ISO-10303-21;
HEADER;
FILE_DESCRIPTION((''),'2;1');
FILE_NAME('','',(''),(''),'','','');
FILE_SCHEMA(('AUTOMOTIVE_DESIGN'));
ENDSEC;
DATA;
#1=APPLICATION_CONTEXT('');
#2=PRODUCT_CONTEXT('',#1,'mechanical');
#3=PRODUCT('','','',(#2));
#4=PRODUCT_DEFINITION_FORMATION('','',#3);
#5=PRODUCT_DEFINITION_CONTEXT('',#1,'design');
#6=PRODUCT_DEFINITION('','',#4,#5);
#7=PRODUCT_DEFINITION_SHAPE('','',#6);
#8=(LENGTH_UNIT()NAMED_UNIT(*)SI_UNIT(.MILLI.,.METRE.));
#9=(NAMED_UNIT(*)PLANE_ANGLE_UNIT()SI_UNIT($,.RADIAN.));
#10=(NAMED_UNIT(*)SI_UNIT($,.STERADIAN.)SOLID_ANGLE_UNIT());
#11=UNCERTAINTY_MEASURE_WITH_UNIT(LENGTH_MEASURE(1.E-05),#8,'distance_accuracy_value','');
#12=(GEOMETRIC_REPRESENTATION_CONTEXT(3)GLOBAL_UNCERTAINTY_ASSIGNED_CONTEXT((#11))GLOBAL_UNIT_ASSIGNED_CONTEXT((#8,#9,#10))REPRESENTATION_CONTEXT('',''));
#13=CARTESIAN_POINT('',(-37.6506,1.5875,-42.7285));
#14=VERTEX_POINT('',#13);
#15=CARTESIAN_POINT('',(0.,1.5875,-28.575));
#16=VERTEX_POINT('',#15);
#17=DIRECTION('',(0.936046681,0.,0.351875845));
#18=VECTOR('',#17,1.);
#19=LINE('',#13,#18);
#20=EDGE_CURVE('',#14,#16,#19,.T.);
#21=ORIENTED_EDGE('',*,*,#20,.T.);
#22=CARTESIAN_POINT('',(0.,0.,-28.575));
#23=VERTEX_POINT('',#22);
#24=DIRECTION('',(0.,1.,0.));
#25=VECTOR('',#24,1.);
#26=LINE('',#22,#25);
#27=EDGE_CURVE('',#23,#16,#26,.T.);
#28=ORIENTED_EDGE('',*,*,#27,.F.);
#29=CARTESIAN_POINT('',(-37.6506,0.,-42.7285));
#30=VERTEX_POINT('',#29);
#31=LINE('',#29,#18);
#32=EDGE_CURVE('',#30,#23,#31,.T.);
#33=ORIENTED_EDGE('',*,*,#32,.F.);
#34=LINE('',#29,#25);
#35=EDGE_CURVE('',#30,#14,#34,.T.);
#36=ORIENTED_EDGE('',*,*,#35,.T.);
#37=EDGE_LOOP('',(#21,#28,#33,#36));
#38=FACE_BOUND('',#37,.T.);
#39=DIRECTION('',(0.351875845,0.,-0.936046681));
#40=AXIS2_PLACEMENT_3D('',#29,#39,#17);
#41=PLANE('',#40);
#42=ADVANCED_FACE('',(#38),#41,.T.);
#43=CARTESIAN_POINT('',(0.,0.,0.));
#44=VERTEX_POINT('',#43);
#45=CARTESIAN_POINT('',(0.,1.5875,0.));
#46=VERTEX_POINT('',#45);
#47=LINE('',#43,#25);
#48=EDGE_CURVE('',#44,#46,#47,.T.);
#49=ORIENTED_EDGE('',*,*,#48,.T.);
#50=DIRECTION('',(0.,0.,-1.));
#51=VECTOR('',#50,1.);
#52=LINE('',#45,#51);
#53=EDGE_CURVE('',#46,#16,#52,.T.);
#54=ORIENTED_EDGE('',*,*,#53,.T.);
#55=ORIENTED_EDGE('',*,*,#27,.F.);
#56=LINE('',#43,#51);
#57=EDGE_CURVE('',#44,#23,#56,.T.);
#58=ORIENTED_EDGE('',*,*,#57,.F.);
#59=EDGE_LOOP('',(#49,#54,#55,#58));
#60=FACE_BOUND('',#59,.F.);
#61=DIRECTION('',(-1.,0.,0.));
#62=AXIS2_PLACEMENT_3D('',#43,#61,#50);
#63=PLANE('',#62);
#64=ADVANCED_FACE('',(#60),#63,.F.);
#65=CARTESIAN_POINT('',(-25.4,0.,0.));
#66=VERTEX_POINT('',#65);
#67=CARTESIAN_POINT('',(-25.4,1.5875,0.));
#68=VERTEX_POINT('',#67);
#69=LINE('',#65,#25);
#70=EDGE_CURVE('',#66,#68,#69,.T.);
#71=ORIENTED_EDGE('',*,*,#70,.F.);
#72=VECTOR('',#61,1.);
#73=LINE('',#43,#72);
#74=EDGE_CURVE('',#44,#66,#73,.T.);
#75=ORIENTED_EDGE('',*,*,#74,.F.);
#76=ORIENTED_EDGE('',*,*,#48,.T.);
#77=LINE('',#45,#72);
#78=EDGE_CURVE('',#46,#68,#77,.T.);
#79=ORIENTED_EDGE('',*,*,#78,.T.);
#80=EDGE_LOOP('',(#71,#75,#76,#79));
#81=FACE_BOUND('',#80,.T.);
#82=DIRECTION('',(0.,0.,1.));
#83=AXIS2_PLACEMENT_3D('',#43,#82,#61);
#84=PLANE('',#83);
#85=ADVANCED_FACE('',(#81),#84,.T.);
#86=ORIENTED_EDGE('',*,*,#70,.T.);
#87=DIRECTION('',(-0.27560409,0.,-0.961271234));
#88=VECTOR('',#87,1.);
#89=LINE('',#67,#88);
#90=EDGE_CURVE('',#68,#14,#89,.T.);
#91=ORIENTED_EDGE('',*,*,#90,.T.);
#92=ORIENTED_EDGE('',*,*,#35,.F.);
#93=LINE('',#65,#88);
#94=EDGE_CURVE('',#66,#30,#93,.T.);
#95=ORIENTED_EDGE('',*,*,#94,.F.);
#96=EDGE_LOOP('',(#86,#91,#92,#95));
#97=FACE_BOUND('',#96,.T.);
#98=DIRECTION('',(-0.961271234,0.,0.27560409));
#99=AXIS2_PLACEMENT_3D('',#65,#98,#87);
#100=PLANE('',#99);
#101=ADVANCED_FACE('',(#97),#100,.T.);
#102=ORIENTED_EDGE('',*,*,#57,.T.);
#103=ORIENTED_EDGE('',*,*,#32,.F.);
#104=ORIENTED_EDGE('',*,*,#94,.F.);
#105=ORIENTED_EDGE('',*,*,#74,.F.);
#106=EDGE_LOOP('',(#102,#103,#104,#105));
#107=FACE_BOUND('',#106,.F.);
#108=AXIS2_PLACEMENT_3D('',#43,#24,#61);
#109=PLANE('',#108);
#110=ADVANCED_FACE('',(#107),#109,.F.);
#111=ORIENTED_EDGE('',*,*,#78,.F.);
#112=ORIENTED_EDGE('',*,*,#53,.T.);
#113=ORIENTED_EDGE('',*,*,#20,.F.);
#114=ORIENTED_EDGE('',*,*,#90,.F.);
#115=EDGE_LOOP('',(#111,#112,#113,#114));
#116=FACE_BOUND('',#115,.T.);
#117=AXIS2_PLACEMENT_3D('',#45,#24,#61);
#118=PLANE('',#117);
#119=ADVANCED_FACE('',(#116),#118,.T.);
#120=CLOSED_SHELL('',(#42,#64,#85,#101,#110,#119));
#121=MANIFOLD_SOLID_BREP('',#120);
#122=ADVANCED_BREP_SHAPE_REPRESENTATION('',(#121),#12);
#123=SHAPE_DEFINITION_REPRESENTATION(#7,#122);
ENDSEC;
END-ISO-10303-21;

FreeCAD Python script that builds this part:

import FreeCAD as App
import Part
import Sketcher
Q = App.Units.Quantity

doc = App.newDocument("Part")
params = doc.addObject("Spreadsheet::Sheet", "Params")
for row, (alias, value) in enumerate([
    ("sketch1_width", "1 in"),
    ("sketch1_length", "1.75 in"),
    ("sketch1_height", "1.125 in"),
    ("pad1_length", "0.0625 in"),
], start=1):
    params.set(f"A{row}", alias)
    params.set(f"B{row}", "=" + value)
    params.setAlias(f"B{row}", alias)

body = doc.addObject("PartDesign::Body", "Body")

# Sketch on XZ plane
sketch1 = doc.addObject("Sketcher::SketchObject", "Sketch")
body.addObject(sketch1)
sketch1.AttachmentSupport = (doc.XZ_Plane, [""])
sketch1.MapMode = "FlatFace"
sketch1.addGeometry([
    Part.LineSegment(App.Vector(-25, 0, 0), App.Vector(0, 0, 0)),
    Part.LineSegment(App.Vector(0, 0, 0), App.Vector(0, -29, 0)),
    Part.LineSegment(App.Vector(0, -29, 0), App.Vector(-38, -43, 0)),
    Part.LineSegment(App.Vector(-38, -43, 0), App.Vector(-25, 0, 0)),
], False)
sketch1.addConstraint([
    Sketcher.Constraint("Coincident", 0, 2, 1, 1),
    Sketcher.Constraint("Coincident", 1, 2, 2, 1),
    Sketcher.Constraint("Coincident", 2, 2, 3, 1),
    Sketcher.Constraint("Coincident", 3, 2, 0, 1),
    Sketcher.Constraint("Horizontal", 0),
    Sketcher.Constraint("Vertical", 1),
    Sketcher.Constraint("Coincident", 0, 2, -1, 1),
    Sketcher.Constraint("DistanceX", 0, 1, 0, 2, Q("1 in")),
    Sketcher.Constraint("Distance", 3, Q("1.75 in")),
    Sketcher.Constraint("DistanceY", 1, 2, 1, 1, Q("1.125 in")),
    Sketcher.Constraint("DistanceX", 2, 2, -1, 1, Q("1.4823 in")),
])
sketch1.setExpression("Constraints[7]", "Params.sketch1_width")
sketch1.setExpression("Constraints[8]", "Params.sketch1_length")
sketch1.setExpression("Constraints[9]", "Params.sketch1_height")
pad1 = doc.addObject("PartDesign::Pad", "Pad")
body.addObject(pad1)
pad1.Profile = sketch1
pad1.setExpression("Length", "Params.pad1_length")
pad1.Reversed = True

doc.recompute()
